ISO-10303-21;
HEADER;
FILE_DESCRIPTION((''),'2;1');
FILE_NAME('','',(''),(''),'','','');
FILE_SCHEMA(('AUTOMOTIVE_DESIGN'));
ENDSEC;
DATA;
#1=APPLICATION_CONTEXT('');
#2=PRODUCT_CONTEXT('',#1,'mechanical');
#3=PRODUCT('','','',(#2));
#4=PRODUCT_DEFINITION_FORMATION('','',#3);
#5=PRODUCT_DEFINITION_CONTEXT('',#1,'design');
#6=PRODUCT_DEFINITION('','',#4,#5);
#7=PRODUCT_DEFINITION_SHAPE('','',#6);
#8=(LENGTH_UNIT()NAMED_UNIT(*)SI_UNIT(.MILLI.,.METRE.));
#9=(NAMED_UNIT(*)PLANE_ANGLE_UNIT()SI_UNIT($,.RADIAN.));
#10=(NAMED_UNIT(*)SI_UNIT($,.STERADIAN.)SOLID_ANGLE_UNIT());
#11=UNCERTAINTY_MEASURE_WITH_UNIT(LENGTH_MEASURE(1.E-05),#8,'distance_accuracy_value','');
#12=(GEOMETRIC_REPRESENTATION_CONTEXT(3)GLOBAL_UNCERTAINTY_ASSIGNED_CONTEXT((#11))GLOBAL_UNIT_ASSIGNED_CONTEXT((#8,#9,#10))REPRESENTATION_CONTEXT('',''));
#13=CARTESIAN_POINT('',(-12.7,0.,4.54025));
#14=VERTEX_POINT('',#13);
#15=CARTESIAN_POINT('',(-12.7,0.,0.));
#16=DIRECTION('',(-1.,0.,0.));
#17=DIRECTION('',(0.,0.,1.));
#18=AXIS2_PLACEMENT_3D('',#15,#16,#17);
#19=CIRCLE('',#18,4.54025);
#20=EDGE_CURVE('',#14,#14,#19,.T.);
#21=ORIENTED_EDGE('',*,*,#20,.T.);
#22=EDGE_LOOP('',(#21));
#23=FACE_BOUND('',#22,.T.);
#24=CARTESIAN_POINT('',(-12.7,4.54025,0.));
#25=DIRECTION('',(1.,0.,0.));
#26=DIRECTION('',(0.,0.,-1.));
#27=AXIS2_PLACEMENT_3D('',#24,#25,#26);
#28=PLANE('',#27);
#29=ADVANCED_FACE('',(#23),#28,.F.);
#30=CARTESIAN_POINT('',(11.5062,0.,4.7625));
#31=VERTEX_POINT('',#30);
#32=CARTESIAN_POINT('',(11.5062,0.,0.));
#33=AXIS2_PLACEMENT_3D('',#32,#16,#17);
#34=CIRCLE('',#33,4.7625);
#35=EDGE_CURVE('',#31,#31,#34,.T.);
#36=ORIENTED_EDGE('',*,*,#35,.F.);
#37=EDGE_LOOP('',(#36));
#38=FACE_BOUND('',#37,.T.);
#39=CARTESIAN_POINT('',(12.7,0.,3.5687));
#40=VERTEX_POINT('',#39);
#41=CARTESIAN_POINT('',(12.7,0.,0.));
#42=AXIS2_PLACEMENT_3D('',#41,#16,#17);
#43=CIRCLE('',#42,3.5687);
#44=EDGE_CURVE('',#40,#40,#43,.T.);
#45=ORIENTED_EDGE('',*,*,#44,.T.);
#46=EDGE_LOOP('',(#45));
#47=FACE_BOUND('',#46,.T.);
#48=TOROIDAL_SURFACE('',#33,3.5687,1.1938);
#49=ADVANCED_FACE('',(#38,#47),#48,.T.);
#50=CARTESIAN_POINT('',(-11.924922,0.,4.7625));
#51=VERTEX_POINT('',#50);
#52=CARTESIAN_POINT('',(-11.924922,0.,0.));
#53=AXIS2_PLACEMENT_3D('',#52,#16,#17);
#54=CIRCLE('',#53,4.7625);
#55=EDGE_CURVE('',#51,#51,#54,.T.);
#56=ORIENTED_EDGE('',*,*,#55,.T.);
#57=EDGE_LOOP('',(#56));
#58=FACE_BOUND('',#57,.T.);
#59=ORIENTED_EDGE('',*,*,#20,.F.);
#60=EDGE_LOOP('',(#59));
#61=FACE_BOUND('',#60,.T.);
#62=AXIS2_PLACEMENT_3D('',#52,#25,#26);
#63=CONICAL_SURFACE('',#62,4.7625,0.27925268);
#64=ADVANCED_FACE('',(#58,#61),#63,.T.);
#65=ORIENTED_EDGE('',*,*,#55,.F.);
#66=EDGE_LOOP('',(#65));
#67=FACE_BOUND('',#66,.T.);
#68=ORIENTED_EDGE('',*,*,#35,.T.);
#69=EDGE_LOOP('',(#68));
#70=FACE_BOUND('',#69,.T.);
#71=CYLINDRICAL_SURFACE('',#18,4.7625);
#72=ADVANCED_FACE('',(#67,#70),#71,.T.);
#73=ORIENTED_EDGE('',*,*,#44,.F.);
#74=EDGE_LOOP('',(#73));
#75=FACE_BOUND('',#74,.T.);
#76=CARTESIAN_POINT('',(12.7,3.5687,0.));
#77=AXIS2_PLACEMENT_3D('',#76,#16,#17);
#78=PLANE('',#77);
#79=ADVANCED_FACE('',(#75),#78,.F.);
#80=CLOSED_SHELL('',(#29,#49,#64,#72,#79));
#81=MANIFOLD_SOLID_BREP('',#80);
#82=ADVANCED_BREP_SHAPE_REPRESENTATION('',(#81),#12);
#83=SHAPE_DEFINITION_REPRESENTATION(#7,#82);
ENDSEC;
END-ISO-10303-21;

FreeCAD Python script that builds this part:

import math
import FreeCAD as App
import Part
import Sketcher

V = App.Vector
Q = App.Units.Quantity

doc = App.newDocument("Part")
body = doc.addObject("PartDesign::Body", "Body")

# Sketch on XY plane
sketch1 = body.newObject("Sketcher::SketchObject", "Sketch")
sketch1.AttachmentSupport = (doc.getObject("XY_Plane"), [""])
sketch1.MapMode = "FlatFace"
sketch1.addGeometry(Part.LineSegment(V(12.7, 0, 0), V(12.7, 3.5687, 0)), False)
sketch1.addGeometry(Part.ArcOfCircle(Part.Circle(V(11.5062, 3.5687, 0), V(0, 0, 1), 1.1938), math.radians(0), math.radians(90)), False)
sketch1.addGeometry(Part.LineSegment(V(11.5062, 4.7625, 0), V(-11.924922, 4.7625, 0)), False)
sketch1.addGeometry(Part.LineSegment(V(-11.924922, 4.7625, 0), V(-12.7, 4.54025, 0)), False)
sketch1.addGeometry(Part.LineSegment(V(-12.7, 4.54025, 0), V(-12.7, 0, 0)), False)
sketch1.addGeometry(Part.LineSegment(V(-12.7, 0, 0), V(12.7, 0, 0)), False)
sketch1.addConstraint(Sketcher.Constraint("Tangent", 0, 2, 1, 1))
sketch1.addConstraint(Sketcher.Constraint("Tangent", 1, 2, 2, 1))
sketch1.addConstraint(Sketcher.Constraint("Coincident", 2, 2, 3, 1))
sketch1.addConstraint(Sketcher.Constraint("Coincident", 3, 2, 4, 1))
sketch1.addConstraint(Sketcher.Constraint("Coincident", 4, 2, 5, 1))
sketch1.addConstraint(Sketcher.Constraint("Coincident", 5, 2, 0, 1))
sketch1.addConstraint(Sketcher.Constraint("Vertical", 0))
sketch1.addConstraint(Sketcher.Constraint("Horizontal", 2))
sketch1.addConstraint(Sketcher.Constraint("Vertical", 4))
sketch1.addConstraint(Sketcher.Constraint("Horizontal", 5))
sketch1.addConstraint(Sketcher.Constraint("Symmetric", 4, 2, 5, 2, -1, 1))
sketch1.addConstraint(Sketcher.Constraint("DistanceX", 5, 1, 5, 2, Q("1 in")))
sketch1.addConstraint(Sketcher.Constraint("Angle", 3, Q("-164 deg")))
sketch1.addConstraint(Sketcher.Constraint("Radius", 1, Q("0.047 in")))
sketch1.addConstraint(Sketcher.Constraint("DistanceY", 0, 1, 0, 2, Q("0.1405 in")))
sketch1.addConstraint(Sketcher.Constraint("DistanceY", 4, 2, 4, 1, 4.54025))
revolution = body.newObject("PartDesign::Revolution", "Revolution")
revolution.Profile = sketch1
revolution.ReferenceAxis = (sketch1, ["H_Axis"])
revolution.Angle = 360

doc.recompute()
